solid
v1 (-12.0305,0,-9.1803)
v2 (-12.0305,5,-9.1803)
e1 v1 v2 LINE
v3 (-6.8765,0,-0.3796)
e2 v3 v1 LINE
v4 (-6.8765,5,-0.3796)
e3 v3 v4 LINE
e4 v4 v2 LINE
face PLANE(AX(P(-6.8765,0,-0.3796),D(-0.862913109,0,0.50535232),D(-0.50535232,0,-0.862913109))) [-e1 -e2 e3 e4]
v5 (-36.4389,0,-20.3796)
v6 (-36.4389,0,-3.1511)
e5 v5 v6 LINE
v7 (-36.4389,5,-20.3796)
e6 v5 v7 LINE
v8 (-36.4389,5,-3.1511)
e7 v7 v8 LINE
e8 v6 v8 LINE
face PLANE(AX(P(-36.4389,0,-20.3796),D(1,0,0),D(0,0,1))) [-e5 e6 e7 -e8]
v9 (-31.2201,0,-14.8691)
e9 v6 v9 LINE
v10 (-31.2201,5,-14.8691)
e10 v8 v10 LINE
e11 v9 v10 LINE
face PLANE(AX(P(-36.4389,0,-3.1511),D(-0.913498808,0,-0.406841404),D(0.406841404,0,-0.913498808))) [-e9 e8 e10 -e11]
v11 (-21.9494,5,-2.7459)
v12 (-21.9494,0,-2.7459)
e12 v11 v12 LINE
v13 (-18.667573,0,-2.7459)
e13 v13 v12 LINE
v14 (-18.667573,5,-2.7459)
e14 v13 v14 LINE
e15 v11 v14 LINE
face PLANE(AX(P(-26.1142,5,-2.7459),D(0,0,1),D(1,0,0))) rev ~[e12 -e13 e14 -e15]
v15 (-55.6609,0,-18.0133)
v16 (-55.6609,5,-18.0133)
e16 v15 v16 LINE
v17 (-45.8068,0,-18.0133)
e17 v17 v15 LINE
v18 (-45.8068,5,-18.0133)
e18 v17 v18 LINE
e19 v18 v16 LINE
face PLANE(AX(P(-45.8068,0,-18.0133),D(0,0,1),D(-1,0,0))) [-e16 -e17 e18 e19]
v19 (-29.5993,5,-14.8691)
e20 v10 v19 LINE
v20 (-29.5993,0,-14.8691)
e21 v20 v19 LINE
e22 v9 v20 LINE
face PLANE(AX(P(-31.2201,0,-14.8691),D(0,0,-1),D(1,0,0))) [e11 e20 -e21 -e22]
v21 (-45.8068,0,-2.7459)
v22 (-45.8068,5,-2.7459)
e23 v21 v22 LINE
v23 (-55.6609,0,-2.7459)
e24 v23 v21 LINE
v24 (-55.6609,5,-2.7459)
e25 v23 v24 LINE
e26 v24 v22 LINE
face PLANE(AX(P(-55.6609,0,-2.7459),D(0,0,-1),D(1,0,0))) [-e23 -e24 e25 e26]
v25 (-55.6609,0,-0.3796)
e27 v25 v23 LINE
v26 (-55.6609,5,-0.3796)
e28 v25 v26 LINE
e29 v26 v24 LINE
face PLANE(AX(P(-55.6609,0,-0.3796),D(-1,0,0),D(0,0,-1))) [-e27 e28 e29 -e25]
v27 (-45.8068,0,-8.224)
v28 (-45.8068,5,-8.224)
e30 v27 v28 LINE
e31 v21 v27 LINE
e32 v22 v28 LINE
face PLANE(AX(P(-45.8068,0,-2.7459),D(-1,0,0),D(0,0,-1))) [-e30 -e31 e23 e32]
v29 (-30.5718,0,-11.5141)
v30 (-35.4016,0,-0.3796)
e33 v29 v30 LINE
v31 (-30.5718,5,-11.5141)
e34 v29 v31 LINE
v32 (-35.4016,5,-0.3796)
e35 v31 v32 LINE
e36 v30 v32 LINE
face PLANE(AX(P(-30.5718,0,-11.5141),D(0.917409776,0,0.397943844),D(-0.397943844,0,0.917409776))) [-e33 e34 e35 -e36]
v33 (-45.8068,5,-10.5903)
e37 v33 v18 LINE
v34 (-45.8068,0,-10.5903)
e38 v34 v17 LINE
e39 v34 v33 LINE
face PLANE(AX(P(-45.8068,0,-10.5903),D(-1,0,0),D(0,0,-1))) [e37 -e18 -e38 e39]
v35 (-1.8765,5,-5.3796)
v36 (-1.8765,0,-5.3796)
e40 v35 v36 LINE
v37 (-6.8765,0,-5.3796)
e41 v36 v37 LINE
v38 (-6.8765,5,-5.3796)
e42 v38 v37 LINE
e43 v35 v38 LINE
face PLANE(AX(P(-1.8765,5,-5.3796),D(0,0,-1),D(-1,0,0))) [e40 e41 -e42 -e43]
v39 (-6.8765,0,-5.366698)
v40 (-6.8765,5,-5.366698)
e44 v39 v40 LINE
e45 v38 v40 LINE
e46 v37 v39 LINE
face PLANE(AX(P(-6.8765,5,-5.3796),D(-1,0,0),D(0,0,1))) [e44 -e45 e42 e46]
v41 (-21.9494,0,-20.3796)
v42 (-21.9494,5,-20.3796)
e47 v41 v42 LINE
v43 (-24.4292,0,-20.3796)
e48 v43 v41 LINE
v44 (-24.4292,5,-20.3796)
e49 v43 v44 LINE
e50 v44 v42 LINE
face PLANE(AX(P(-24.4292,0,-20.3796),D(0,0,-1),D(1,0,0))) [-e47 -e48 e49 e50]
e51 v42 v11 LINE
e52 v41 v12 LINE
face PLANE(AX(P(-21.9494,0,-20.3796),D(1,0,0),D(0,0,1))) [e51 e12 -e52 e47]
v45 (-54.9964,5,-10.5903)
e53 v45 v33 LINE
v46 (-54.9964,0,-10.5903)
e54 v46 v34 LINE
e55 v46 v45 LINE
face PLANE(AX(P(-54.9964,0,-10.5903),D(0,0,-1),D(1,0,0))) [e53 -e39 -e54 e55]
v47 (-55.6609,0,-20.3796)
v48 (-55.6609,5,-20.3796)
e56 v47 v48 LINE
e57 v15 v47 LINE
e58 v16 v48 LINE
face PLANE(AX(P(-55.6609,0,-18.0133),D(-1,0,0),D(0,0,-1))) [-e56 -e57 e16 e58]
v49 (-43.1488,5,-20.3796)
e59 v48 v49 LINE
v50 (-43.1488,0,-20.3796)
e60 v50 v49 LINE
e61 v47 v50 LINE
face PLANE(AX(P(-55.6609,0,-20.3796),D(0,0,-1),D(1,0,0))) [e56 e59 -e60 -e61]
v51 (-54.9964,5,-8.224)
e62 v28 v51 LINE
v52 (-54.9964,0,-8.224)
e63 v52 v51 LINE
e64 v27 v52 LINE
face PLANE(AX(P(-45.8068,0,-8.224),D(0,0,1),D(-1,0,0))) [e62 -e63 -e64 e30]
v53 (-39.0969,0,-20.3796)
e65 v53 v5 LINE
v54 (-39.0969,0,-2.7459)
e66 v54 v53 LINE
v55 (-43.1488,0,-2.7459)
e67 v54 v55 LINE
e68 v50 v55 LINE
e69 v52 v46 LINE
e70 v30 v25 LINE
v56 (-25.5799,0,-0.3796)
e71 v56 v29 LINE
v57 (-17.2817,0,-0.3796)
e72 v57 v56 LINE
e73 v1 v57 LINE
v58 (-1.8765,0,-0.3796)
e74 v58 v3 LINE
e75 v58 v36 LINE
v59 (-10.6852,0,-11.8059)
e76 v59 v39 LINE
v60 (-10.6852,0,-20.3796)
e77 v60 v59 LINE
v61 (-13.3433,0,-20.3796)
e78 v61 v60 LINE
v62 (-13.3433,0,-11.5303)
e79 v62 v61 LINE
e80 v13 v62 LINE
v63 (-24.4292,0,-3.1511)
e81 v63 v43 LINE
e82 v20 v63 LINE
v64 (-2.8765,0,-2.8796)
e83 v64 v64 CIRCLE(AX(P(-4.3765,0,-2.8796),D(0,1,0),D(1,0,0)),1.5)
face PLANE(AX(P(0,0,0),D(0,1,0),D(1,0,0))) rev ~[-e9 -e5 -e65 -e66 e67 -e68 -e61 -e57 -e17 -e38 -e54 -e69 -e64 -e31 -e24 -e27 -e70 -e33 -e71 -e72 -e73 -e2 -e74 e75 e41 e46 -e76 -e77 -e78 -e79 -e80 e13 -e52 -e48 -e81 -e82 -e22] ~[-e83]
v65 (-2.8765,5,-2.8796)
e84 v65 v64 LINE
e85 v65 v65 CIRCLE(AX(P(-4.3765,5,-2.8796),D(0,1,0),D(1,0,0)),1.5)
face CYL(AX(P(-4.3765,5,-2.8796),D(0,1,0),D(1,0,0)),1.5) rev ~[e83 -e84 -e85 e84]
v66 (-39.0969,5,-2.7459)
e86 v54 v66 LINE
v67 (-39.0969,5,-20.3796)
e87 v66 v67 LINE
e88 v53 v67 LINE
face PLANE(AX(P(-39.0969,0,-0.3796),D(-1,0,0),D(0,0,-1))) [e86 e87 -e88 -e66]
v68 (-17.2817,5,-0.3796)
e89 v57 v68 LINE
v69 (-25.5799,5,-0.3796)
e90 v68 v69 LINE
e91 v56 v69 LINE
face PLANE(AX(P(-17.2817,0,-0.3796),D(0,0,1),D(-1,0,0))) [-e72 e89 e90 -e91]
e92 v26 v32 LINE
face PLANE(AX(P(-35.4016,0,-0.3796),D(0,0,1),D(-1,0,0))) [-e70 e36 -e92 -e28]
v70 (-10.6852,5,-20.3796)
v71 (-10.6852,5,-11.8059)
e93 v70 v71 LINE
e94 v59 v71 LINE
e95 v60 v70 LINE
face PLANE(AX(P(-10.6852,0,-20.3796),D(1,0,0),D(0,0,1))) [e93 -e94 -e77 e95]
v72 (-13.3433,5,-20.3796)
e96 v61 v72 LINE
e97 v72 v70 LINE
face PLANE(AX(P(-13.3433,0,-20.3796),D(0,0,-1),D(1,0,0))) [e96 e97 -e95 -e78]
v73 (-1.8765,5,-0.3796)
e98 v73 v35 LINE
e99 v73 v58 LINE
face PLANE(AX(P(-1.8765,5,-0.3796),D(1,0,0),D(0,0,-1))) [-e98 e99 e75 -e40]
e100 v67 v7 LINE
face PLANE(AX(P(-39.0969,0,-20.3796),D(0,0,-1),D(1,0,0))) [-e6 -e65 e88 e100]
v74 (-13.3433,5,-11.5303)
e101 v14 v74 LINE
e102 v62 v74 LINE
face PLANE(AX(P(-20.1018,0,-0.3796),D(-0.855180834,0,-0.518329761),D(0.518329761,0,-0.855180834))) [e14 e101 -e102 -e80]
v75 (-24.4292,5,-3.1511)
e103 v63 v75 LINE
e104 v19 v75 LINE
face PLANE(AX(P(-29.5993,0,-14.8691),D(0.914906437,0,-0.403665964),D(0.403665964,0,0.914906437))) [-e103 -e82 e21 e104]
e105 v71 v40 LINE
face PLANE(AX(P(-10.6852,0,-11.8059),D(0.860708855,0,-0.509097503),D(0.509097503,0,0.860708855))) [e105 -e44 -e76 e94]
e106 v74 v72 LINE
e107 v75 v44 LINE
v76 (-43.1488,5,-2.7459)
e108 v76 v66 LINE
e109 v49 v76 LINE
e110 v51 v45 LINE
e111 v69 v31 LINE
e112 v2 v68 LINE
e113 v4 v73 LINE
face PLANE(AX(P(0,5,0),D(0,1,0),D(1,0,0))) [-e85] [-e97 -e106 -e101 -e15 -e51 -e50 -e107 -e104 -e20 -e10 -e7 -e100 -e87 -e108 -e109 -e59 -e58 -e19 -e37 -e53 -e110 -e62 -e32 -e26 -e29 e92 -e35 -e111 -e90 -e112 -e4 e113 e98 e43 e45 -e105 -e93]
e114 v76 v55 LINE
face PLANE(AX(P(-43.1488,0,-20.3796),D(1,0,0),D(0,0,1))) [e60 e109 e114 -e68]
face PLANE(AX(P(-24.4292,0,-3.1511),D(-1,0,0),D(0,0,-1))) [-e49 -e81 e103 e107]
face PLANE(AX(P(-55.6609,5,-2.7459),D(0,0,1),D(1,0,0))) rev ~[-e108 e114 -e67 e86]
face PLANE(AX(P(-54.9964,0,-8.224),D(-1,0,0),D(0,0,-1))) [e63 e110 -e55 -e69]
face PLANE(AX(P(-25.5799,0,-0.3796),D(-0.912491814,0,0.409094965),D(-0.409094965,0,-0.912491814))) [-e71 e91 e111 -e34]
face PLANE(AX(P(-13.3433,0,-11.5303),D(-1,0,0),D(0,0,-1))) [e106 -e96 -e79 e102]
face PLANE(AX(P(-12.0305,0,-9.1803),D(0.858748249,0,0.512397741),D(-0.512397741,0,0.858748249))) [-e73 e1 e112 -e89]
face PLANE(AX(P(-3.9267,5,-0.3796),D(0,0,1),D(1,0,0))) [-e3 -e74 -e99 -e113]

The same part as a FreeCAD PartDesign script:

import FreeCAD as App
import Part
import Sketcher

V = App.Vector
Q = App.Units.Quantity


def add_polygon(sketch, points):
    """Adds a closed chain of lines whose ends are joined by coincident constraints."""
    first, n = sketch.GeometryCount, len(points)
    for a, b in zip(points, points[1:] + points[:1]):
        sketch.addGeometry(Part.LineSegment(App.Vector(*a, 0), App.Vector(*b, 0)), False)
    for i in range(n):
        sketch.addConstraint(Sketcher.Constraint("Coincident", first + i, 2, first + (i + 1) % n, 1))

doc = App.newDocument("Part")
body = doc.addObject("PartDesign::Body", "Body")
body.AllowCompound = True

# Sketch on XZ plane
sketch1 = doc.addObject("Sketcher::SketchObject", "Sketch")
body.addObject(sketch1)
sketch1.AttachmentSupport = (doc.XZ_Plane, [""])
sketch1.MapMode = "FlatFace"
add_polygon(sketch1, [(-13.3433, -11.5303), (-20.1018, -0.3796), (-17.2817, -0.3796), (-12.0305, -9.1803), (-6.8765, -0.3796), (-3.9267, -0.3796), (-10.6852, -11.8059), (-10.6852, -20.3796), (-13.3433, -20.3796)])  # lines 0-8
add_polygon(sketch1, [(-36.4389, -20.3796), (-39.0969, -20.3796), (-39.0969, -0.3796), (-35.4016, -0.3796), (-30.5718, -11.5141), (-25.5799, -0.3796), (-21.9494, -0.3796), (-21.9494, -20.3796), (-24.4292, -20.3796), (-24.4292, -3.1511), (-29.5993, -14.8691), (-31.2201, -14.8691), (-36.4389, -3.1511)])  # lines 9-21
add_polygon(sketch1, [(-43.1488, -0.3796), (-43.1488, -20.3796), (-55.6609, -20.3796), (-55.6609, -18.0133), (-45.8068, -18.0133), (-45.8068, -10.5903), (-54.9964, -10.5903), (-54.9964, -8.224), (-45.8068, -8.224), (-45.8068, -2.7459), (-55.6609, -2.7459), (-55.6609, -0.3796)])  # lines 22-33
sketch1.addConstraint([
    Sketcher.Constraint("Horizontal", 1),
    Sketcher.Constraint("Horizontal", 4),
    Sketcher.Constraint("Vertical", 6),
    Sketcher.Constraint("Horizontal", 7),
    Sketcher.Constraint("Vertical", 8),
    Sketcher.Constraint("Horizontal", 9),
    Sketcher.Constraint("Vertical", 10),
    Sketcher.Constraint("Horizontal", 11),
    Sketcher.Constraint("Horizontal", 14),
    Sketcher.Constraint("Vertical", 15),
    Sketcher.Constraint("Horizontal", 16),
    Sketcher.Constraint("Vertical", 17),
    Sketcher.Constraint("Horizontal", 19),
    Sketcher.Constraint("Vertical", 21),
    Sketcher.Constraint("Vertical", 22),
    Sketcher.Constraint("Horizontal", 23),
    Sketcher.Constraint("Vertical", 24),
    Sketcher.Constraint("Horizontal", 25),
    Sketcher.Constraint("Vertical", 26),
    Sketcher.Constraint("Horizontal", 27),
    Sketcher.Constraint("Vertical", 28),
    Sketcher.Constraint("Horizontal", 29),
    Sketcher.Constraint("Vertical", 30),
    Sketcher.Constraint("Horizontal", 31),
    Sketcher.Constraint("Vertical", 32),
    Sketcher.Constraint("Horizontal", 33),
    Sketcher.Constraint("Horizontal", 1, 2, 3, 2),
    Sketcher.Constraint("Horizontal", 7, 2, 9, 2),
    Sketcher.Constraint("Horizontal", 4, 2, 10, 2),
    Sketcher.Constraint("Horizontal", 11, 2, 13, 2),
    Sketcher.Constraint("Horizontal", 9, 2, 15, 2),
    Sketcher.Constraint("Horizontal", 17, 2, 20, 2),
    Sketcher.Constraint("Horizontal", 21, 2, 22, 2),
    Sketcher.Constraint("Horizontal", 14, 2, 32, 2),
    Sketcher.Constraint("Vertical", 26, 2, 29, 2),
    Sketcher.Constraint("Vertical", 24, 2, 31, 2),
    Sketcher.Constraint("Equal", 7, 9),
    Sketcher.Constraint("Equal", 24, 28),
    Sketcher.Constraint("Equal", 28, 32),
    Sketcher.Constraint("DistanceY", 10, 1, 10, 2, Q("20 mm")),
    Sketcher.Constraint("DistanceX", 1, 1, 1, 2, Q("2.82 mm")),
    Sketcher.Constraint("Angle", 0, Q("121.2203 deg")),
    Sketcher.Constraint("Angle", 12, Q("-66.5503 deg")),
    Sketcher.Constraint("DistanceX", 7, 2, 7, 1, Q("2.658 mm")),
    Sketcher.Constraint("DistanceX", 23, 2, 23, 1, Q("12.512 mm")),
    Sketcher.Constraint("DistanceX", 25, 1, 25, 2, Q("9.854 mm")),
    Sketcher.Constraint("DistanceY", 26, 1, 26, 2, Q("7.423 mm")),
    Sketcher.Constraint("DistanceY", 30, 1, 30, 2, Q("5.478 mm")),
    Sketcher.Constraint("DistanceX", 13, 2, -1, 1, Q("25.58 mm")),
    Sketcher.Constraint("DistanceX", 19, 2, -1, 1, Q("31.22 mm")),
    Sketcher.Constraint("DistanceY", 8, 2, 2, 2, Q("2.35 mm")),
    Sketcher.Constraint("DistanceX", 11, 2, 1, 2, Q("18.12 mm")),
    Sketcher.Constraint("DistanceX", 12, 2, 0, 2, Q("10.47 mm")),
    Sketcher.Constraint("DistanceX", 18, 2, 16, 2, Q("5.17 mm")),
    Sketcher.Constraint("DistanceX", 18, 2, 15, 2, Q("7.65 mm")),
    Sketcher.Constraint("DistanceX", 22, 2, 21, 2, Q("6.71 mm")),
    Sketcher.Constraint("Distance", 0, Q("13.039 mm")),
    Sketcher.Constraint("DistanceX", 4, 1, 4, 2, Q("2.9498 mm")),
    Sketcher.Constraint("DistanceX", 11, 1, 11, 2, Q("3.6953 mm")),
    Sketcher.Constraint("DistanceX", 14, 1, 14, 2, Q("3.6305 mm")),
    Sketcher.Constraint("DistanceX", 27, 2, 27, 1, Q("9.1896 mm")),
    Sketcher.Constraint("DistanceY", 6, 2, 6, 1, Q("8.5737 mm")),
    Sketcher.Constraint("DistanceY", 17, 1, 17, 2, Q("17.2285 mm")),
    Sketcher.Constraint("DistanceY", 5, 2, -1, 1, Q("11.806 mm")),
    Sketcher.Constraint("DistanceX", 9, 2, -1, 1, Q("39.097 mm")),
    Sketcher.Constraint("DistanceY", 18, 2, -1, 1, Q("14.869 mm")),
    Sketcher.Constraint("DistanceX", 2, 2, 3, 2, Q("5.154 mm")),
    Sketcher.Constraint("DistanceX", 1, 2, 4, 2, Q("13.355 mm")),
])
pad1 = doc.addObject("PartDesign::Pad", "Pad")
body.addObject(pad1)
pad1.Profile = sketch1
pad1.Length = 5
pad1.Reversed = True

# Sketch on XZ plane
sketch2 = doc.addObject("Sketcher::SketchObject", "Sketch001")
body.addObject(sketch2)
sketch2.AttachmentSupport = (doc.XZ_Plane, [""])
sketch2.MapMode = "FlatFace"
sketch2.AttachmentOffset = App.Placement(V(0, 0, -5), App.Rotation())
add_polygon(sketch2, [(-55.6609, -2.7459), (-55.6609, -0.3796), (-38.2567, -0.3796), (-38.2567, -2.7459)])  # lines 0-3
add_polygon(sketch2, [(-26.1142, -2.7459), (-24.9933, -0.3796), (-17.3426, -0.3796), (-16.2934, -2.7459)])  # lines 4-7
sketch2.addConstraint([
    Sketcher.Constraint("Vertical", 0),
    Sketcher.Constraint("Horizontal", 1),
    Sketcher.Constraint("Vertical", 2),
    Sketcher.Constraint("Horizontal", 3),
    Sketcher.Constraint("Horizontal", 5),
    Sketcher.Constraint("Horizontal", 7),
    Sketcher.Constraint("Horizontal", 1, 2, 4, 2),
    Sketcher.Constraint("Horizontal", 3, 2, 6, 2),
    Sketcher.Constraint("DistanceX", 4, 2, 6, 2, Q("8.7 mm")),
    Sketcher.Constraint("DistanceX", 1, 1, 1, 2, Q("17.4042 mm")),
    Sketcher.Constraint("DistanceX", 5, 1, 5, 2, Q("7.6507 mm")),
    Sketcher.Constraint("DistanceX", 7, 2, 7, 1, Q("9.8208 mm")),
    Sketcher.Constraint("DistanceY", 0, 1, 0, 2, Q("2.3663 mm")),
    Sketcher.Constraint("DistanceX", 0, 2, -1, 1, Q("55.661 mm")),
    Sketcher.Constraint("DistanceY", 2, 2, -1, 1, Q("2.746 mm")),
    Sketcher.Constraint("DistanceX", 1, 2, 5, 2, Q("20.914 mm")),
])
pad2 = doc.addObject("PartDesign::Pad", "Pad001")
body.addObject(pad2)
pad2.Profile = sketch2
pad2.Length = 5

# Sketch on XZ plane
sketch3 = doc.addObject("Sketcher::SketchObject", "Sketch002")
body.addObject(sketch3)
sketch3.AttachmentSupport = (doc.XZ_Plane, [""])
sketch3.MapMode = "FlatFace"
sketch3.AttachmentOffset = App.Placement(V(0, 0, -5), App.Rotation())
add_polygon(sketch3, [(-6.8765, -5.3796), (-6.8765, -0.3796), (-1.8765, -0.3796), (-1.8765, -5.3796)])  # lines 0-3
sketch3.addConstraint([
    Sketcher.Constraint("Vertical", 0),
    Sketcher.Constraint("Horizontal", 1),
    Sketcher.Constraint("Vertical", 2),
    Sketcher.Constraint("Horizontal", 3),
    Sketcher.Constraint("Equal", 3, 0),
    Sketcher.Constraint("DistanceX", 1, 1, 1, 2, Q("5 mm")),
    Sketcher.Constraint("DistanceX", 0, 2, -1, 1, Q("6.8765 mm")),
    Sketcher.Constraint("DistanceY", 0, 2, -1, 1, Q("0.3796 mm")),
])
pad3 = doc.addObject("PartDesign::Pad", "Pad002")
body.addObject(pad3)
pad3.Profile = sketch3
pad3.Length = 5

# Sketch on XZ plane
sketch4 = doc.addObject("Sketcher::SketchObject", "Sketch003")
body.addObject(sketch4)
sketch4.AttachmentSupport = (doc.XZ_Plane, [""])
sketch4.MapMode = "FlatFace"
sketch4.AttachmentOffset = App.Placement(V(0, 0, -5), App.Rotation())
sketch4.addGeometry(Part.Circle(V(-4.3765, -2.8796, 0), V(0, 0, 1), 1.5), False)
sketch4.addConstraint([
    Sketcher.Constraint("Diameter", 0, Q("3 mm")),
    Sketcher.Constraint("DistanceX", 0, 3, -1, 1, Q("4.3765 mm")),
    Sketcher.Constraint("DistanceY", 0, 3, -1, 1, Q("2.8796 mm")),
])
pocket1 = doc.addObject("PartDesign::Pocket", "Pocket")
body.addObject(pocket1)
pocket1.Profile = sketch4
pocket1.Length = 5
pocket1.Reversed = True

doc.recompute()
